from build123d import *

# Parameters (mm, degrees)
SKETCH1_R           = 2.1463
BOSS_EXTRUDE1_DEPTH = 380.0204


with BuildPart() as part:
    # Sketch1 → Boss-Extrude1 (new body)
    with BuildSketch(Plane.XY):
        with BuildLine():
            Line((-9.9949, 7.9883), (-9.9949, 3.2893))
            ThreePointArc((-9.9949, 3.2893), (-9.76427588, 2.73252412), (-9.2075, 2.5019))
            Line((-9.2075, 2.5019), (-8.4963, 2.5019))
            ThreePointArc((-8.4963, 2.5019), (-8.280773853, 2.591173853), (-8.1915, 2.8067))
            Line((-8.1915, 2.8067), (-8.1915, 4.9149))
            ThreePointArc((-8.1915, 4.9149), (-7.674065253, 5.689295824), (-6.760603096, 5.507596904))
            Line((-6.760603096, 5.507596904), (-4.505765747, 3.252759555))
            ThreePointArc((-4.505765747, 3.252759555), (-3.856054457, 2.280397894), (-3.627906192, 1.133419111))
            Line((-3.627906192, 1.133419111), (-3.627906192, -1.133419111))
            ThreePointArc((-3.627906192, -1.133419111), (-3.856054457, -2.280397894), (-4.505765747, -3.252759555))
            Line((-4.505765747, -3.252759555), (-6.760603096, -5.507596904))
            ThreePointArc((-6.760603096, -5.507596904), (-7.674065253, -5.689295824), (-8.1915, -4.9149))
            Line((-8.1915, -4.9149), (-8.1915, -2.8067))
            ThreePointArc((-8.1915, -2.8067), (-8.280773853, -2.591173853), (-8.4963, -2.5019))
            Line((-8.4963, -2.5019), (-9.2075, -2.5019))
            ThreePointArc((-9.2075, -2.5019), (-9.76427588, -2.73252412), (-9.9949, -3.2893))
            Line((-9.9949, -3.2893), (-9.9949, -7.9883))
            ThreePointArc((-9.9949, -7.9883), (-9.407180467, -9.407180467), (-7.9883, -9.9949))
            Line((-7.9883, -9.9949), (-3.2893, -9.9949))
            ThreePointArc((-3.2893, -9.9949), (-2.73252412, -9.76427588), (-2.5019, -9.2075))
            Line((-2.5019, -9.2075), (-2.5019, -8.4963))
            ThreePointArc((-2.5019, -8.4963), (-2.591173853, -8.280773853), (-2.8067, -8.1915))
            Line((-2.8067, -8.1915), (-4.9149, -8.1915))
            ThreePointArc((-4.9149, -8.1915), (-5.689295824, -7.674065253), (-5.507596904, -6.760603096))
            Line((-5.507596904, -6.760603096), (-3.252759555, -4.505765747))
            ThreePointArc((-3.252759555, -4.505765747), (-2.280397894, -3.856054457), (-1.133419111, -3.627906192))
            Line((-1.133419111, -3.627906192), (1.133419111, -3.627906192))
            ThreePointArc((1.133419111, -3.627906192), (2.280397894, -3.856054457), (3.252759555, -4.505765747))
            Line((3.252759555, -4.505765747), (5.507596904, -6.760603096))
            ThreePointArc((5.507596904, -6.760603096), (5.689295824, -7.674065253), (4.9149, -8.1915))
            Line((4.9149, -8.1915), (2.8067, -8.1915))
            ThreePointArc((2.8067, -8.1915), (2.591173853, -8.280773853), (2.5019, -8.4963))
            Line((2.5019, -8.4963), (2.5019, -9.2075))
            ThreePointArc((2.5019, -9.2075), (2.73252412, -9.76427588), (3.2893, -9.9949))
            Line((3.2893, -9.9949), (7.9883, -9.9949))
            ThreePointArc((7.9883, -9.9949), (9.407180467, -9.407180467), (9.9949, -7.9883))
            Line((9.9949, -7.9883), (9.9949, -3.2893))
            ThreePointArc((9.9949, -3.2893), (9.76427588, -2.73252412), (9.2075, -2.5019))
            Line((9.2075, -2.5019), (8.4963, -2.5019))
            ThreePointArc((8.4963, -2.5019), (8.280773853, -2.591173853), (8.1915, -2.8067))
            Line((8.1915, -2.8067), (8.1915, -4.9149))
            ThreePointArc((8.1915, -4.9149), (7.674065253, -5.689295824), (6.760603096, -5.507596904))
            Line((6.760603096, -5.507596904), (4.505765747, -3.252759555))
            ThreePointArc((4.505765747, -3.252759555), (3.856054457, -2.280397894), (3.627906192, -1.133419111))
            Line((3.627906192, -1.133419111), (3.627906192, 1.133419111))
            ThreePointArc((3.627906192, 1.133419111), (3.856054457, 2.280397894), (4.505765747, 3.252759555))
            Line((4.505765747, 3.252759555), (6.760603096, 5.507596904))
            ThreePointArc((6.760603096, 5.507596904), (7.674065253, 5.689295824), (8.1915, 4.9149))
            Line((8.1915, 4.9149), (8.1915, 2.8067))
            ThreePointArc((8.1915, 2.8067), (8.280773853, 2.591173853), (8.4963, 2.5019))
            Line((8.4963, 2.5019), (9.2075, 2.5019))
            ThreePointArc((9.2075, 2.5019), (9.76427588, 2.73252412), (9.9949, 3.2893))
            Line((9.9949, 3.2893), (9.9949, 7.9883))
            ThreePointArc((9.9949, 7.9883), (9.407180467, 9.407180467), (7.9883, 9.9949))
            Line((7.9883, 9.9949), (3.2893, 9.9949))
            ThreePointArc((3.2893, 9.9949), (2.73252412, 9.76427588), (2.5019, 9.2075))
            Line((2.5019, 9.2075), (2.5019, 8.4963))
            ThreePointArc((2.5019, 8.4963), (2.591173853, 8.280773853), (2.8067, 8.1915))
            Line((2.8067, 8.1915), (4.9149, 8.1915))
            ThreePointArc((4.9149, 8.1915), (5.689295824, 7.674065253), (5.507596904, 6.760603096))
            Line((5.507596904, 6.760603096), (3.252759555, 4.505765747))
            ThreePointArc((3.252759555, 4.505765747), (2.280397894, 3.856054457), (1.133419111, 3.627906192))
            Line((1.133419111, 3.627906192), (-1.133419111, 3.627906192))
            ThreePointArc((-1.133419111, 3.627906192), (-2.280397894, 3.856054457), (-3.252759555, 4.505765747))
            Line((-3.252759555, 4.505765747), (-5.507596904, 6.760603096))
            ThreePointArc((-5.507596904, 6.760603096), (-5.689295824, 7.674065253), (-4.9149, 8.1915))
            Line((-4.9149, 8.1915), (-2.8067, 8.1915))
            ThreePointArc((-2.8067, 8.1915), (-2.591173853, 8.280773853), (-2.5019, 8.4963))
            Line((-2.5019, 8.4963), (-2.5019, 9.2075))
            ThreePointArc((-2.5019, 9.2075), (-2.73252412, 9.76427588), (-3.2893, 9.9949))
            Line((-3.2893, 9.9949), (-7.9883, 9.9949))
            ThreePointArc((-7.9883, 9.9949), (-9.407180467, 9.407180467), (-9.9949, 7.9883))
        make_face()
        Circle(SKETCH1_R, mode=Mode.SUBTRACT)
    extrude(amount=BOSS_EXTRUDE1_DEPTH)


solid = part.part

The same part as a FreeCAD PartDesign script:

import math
import FreeCAD as App
import Part
import Sketcher
Q = App.Units.Quantity

doc = App.newDocument("Part")
body = doc.addObject("PartDesign::Body", "Body")

# Sketch on XY plane
sketch1 = body.newObject("Sketcher::SketchObject", "Sketch")
sketch1.AttachmentSupport = (doc.getObject("XY_Plane"), [""])
sketch1.MapMode = "FlatFace"
sketch1.addGeometry([
    Part.LineSegment(App.Vector(-9.9949, 7.9883, 0), App.Vector(-9.9949, 3.2893, 0)),  # 0
    Part.ArcOfCircle(Part.Circle(App.Vector(-9.2075, 3.2893, 0), App.Vector(0, 0, 1), 0.7874), math.radians(180), math.radians(270)),  # 1
    Part.LineSegment(App.Vector(-9.2075, 2.5019, 0), App.Vector(-8.4963, 2.5019, 0)),  # 2
    Part.ArcOfCircle(Part.Circle(App.Vector(-8.4963, 2.8067, 0), App.Vector(0, 0, 1), 0.3048), math.radians(-90), math.radians(0)),  # 3
    Part.LineSegment(App.Vector(-8.1915, 2.8067, 0), App.Vector(-8.1915, 4.9149, 0)),  # 4
    Part.ArcOfCircle(Part.Circle(App.Vector(-7.3533, 4.9149, 0), App.Vector(0, 0, 1), 0.8382), math.radians(45), math.radians(180)),  # 5
    Part.LineSegment(App.Vector(-6.760603, 5.507597, 0), App.Vector(-4.505766, 3.25276, 0)),  # 6
    Part.ArcOfCircle(Part.Circle(App.Vector(-6.625106, 1.133419, 0), App.Vector(0, 0, 1), 2.9972), math.radians(0), math.radians(45)),  # 7
    Part.LineSegment(App.Vector(-3.627906, 1.133419, 0), App.Vector(-3.627906, -1.133419, 0)),  # 8
    Part.ArcOfCircle(Part.Circle(App.Vector(-6.625106, -1.133419, 0), App.Vector(0, 0, 1), 2.9972), math.radians(-45), math.radians(0)),  # 9
    Part.LineSegment(App.Vector(-4.505766, -3.25276, 0), App.Vector(-6.760603, -5.507597, 0)),  # 10
    Part.ArcOfCircle(Part.Circle(App.Vector(-7.3533, -4.9149, 0), App.Vector(0, 0, 1), 0.8382), math.radians(180), math.radians(315)),  # 11
    Part.LineSegment(App.Vector(-8.1915, -4.9149, 0), App.Vector(-8.1915, -2.8067, 0)),  # 12
    Part.ArcOfCircle(Part.Circle(App.Vector(-8.4963, -2.8067, 0), App.Vector(0, 0, 1), 0.3048), math.radians(0), math.radians(90)),  # 13
    Part.LineSegment(App.Vector(-8.4963, -2.5019, 0), App.Vector(-9.2075, -2.5019, 0)),  # 14
    Part.ArcOfCircle(Part.Circle(App.Vector(-9.2075, -3.2893, 0), App.Vector(0, 0, 1), 0.7874), math.radians(90), math.radians(180)),  # 15
    Part.LineSegment(App.Vector(-9.9949, -3.2893, 0), App.Vector(-9.9949, -7.9883, 0)),  # 16
    Part.ArcOfCircle(Part.Circle(App.Vector(-7.9883, -7.9883, 0), App.Vector(0, 0, 1), 2.0066), math.radians(180), math.radians(270)),  # 17
    Part.LineSegment(App.Vector(-7.9883, -9.9949, 0), App.Vector(-3.2893, -9.9949, 0)),  # 18
    Part.ArcOfCircle(Part.Circle(App.Vector(-3.2893, -9.2075, 0), App.Vector(0, 0, 1), 0.7874), math.radians(-90), math.radians(0)),  # 19
    Part.LineSegment(App.Vector(-2.5019, -9.2075, 0), App.Vector(-2.5019, -8.4963, 0)),  # 20
    Part.ArcOfCircle(Part.Circle(App.Vector(-2.8067, -8.4963, 0), App.Vector(0, 0, 1), 0.3048), math.radians(0), math.radians(90)),  # 21
    Part.LineSegment(App.Vector(-2.8067, -8.1915, 0), App.Vector(-4.9149, -8.1915, 0)),  # 22
    Part.ArcOfCircle(Part.Circle(App.Vector(-4.9149, -7.3533, 0), App.Vector(0, 0, 1), 0.8382), math.radians(135), math.radians(270)),  # 23
    Part.LineSegment(App.Vector(-5.507597, -6.760603, 0), App.Vector(-3.25276, -4.505766, 0)),  # 24
    Part.ArcOfCircle(Part.Circle(App.Vector(-1.133419, -6.625106, 0), App.Vector(0, 0, 1), 2.9972), math.radians(90), math.radians(135)),  # 25
    Part.LineSegment(App.Vector(-1.133419, -3.627906, 0), App.Vector(1.133419, -3.627906, 0)),  # 26
    Part.ArcOfCircle(Part.Circle(App.Vector(1.133419, -6.625106, 0), App.Vector(0, 0, 1), 2.9972), math.radians(45), math.radians(90)),  # 27
    Part.LineSegment(App.Vector(3.25276, -4.505766, 0), App.Vector(5.507597, -6.760603, 0)),  # 28
    Part.ArcOfCircle(Part.Circle(App.Vector(4.9149, -7.3533, 0), App.Vector(0, 0, 1), 0.8382), math.radians(-90), math.radians(45)),  # 29
    Part.LineSegment(App.Vector(4.9149, -8.1915, 0), App.Vector(2.8067, -8.1915, 0)),  # 30
    Part.ArcOfCircle(Part.Circle(App.Vector(2.8067, -8.4963, 0), App.Vector(0, 0, 1), 0.3048), math.radians(90), math.radians(180)),  # 31
    Part.LineSegment(App.Vector(2.5019, -8.4963, 0), App.Vector(2.5019, -9.2075, 0)),  # 32
    Part.ArcOfCircle(Part.Circle(App.Vector(3.2893, -9.2075, 0), App.Vector(0, 0, 1), 0.7874), math.radians(180), math.radians(270)),  # 33
    Part.LineSegment(App.Vector(3.2893, -9.9949, 0), App.Vector(7.9883, -9.9949, 0)),  # 34
    Part.ArcOfCircle(Part.Circle(App.Vector(7.9883, -7.9883, 0), App.Vector(0, 0, 1), 2.0066), math.radians(-90), math.radians(0)),  # 35
    Part.LineSegment(App.Vector(9.9949, -7.9883, 0), App.Vector(9.9949, -3.2893, 0)),  # 36
    Part.ArcOfCircle(Part.Circle(App.Vector(9.2075, -3.2893, 0), App.Vector(0, 0, 1), 0.7874), math.radians(0), math.radians(90)),  # 37
    Part.LineSegment(App.Vector(9.2075, -2.5019, 0), App.Vector(8.4963, -2.5019, 0)),  # 38
    Part.ArcOfCircle(Part.Circle(App.Vector(8.4963, -2.8067, 0), App.Vector(0, 0, 1), 0.3048), math.radians(90), math.radians(180)),  # 39
    Part.LineSegment(App.Vector(8.1915, -2.8067, 0), App.Vector(8.1915, -4.9149, 0)),  # 40
    Part.ArcOfCircle(Part.Circle(App.Vector(7.3533, -4.9149, 0), App.Vector(0, 0, 1), 0.8382), math.radians(-135), math.radians(0)),  # 41
    Part.LineSegment(App.Vector(6.760603, -5.507597, 0), App.Vector(4.505766, -3.25276, 0)),  # 42
    Part.ArcOfCircle(Part.Circle(App.Vector(6.625106, -1.133419, 0), App.Vector(0, 0, 1), 2.9972), math.radians(180), math.radians(225)),  # 43
    Part.LineSegment(App.Vector(3.627906, -1.133419, 0), App.Vector(3.627906, 1.133419, 0)),  # 44
    Part.ArcOfCircle(Part.Circle(App.Vector(6.625106, 1.133419, 0), App.Vector(0, 0, 1), 2.9972), math.radians(135), math.radians(180)),  # 45
    Part.LineSegment(App.Vector(4.505766, 3.25276, 0), App.Vector(6.760603, 5.507597, 0)),  # 46
    Part.ArcOfCircle(Part.Circle(App.Vector(7.3533, 4.9149, 0), App.Vector(0, 0, 1), 0.8382), math.radians(0), math.radians(135)),  # 47
    Part.LineSegment(App.Vector(8.1915, 4.9149, 0), App.Vector(8.1915, 2.8067, 0)),  # 48
    Part.ArcOfCircle(Part.Circle(App.Vector(8.4963, 2.8067, 0), App.Vector(0, 0, 1), 0.3048), math.radians(180), math.radians(270)),  # 49
    Part.LineSegment(App.Vector(8.4963, 2.5019, 0), App.Vector(9.2075, 2.5019, 0)),  # 50
    Part.ArcOfCircle(Part.Circle(App.Vector(9.2075, 3.2893, 0), App.Vector(0, 0, 1), 0.7874), math.radians(-90), math.radians(0)),  # 51
    Part.LineSegment(App.Vector(9.9949, 3.2893, 0), App.Vector(9.9949, 7.9883, 0)),  # 52
    Part.ArcOfCircle(Part.Circle(App.Vector(7.9883, 7.9883, 0), App.Vector(0, 0, 1), 2.0066), math.radians(0), math.radians(90)),  # 53
    Part.LineSegment(App.Vector(7.9883, 9.9949, 0), App.Vector(3.2893, 9.9949, 0)),  # 54
    Part.ArcOfCircle(Part.Circle(App.Vector(3.2893, 9.2075, 0), App.Vector(0, 0, 1), 0.7874), math.radians(90), math.radians(180)),  # 55
    Part.LineSegment(App.Vector(2.5019, 9.2075, 0), App.Vector(2.5019, 8.4963, 0)),  # 56
    Part.ArcOfCircle(Part.Circle(App.Vector(2.8067, 8.4963, 0), App.Vector(0, 0, 1), 0.3048), math.radians(180), math.radians(270)),  # 57
    Part.LineSegment(App.Vector(2.8067, 8.1915, 0), App.Vector(4.9149, 8.1915, 0)),  # 58
    Part.ArcOfCircle(Part.Circle(App.Vector(4.9149, 7.3533, 0), App.Vector(0, 0, 1), 0.8382), math.radians(-45), math.radians(90)),  # 59
    Part.LineSegment(App.Vector(5.507597, 6.760603, 0), App.Vector(3.25276, 4.505766, 0)),  # 60
    Part.ArcOfCircle(Part.Circle(App.Vector(1.133419, 6.625106, 0), App.Vector(0, 0, 1), 2.9972), math.radians(-90), math.radians(-45)),  # 61
    Part.LineSegment(App.Vector(1.133419, 3.627906, 0), App.Vector(-1.133419, 3.627906, 0)),  # 62
    Part.ArcOfCircle(Part.Circle(App.Vector(-1.133419, 6.625106, 0), App.Vector(0, 0, 1), 2.9972), math.radians(-135), math.radians(-90)),  # 63
    Part.LineSegment(App.Vector(-3.25276, 4.505766, 0), App.Vector(-5.507597, 6.760603, 0)),  # 64
    Part.ArcOfCircle(Part.Circle(App.Vector(-4.9149, 7.3533, 0), App.Vector(0, 0, 1), 0.8382), math.radians(90), math.radians(225)),  # 65
    Part.LineSegment(App.Vector(-4.9149, 8.1915, 0), App.Vector(-2.8067, 8.1915, 0)),  # 66
    Part.ArcOfCircle(Part.Circle(App.Vector(-2.8067, 8.4963, 0), App.Vector(0, 0, 1), 0.3048), math.radians(-90), math.radians(0)),  # 67
    Part.LineSegment(App.Vector(-2.5019, 8.4963, 0), App.Vector(-2.5019, 9.2075, 0)),  # 68
    Part.ArcOfCircle(Part.Circle(App.Vector(-3.2893, 9.2075, 0), App.Vector(0, 0, 1), 0.7874), math.radians(0), math.radians(90)),  # 69
    Part.LineSegment(App.Vector(-3.2893, 9.9949, 0), App.Vector(-7.9883, 9.9949, 0)),  # 70
    Part.ArcOfCircle(Part.Circle(App.Vector(-7.9883, 7.9883, 0), App.Vector(0, 0, 1), 2.0066), math.radians(90), math.radians(180)),  # 71
    Part.Circle(App.Vector(0, 0, 0), App.Vector(0, 0, 1), 2.1463),  # 72
], False)
sketch1.addConstraint([
    Sketcher.Constraint("Tangent", 0, 2, 1, 1),
    Sketcher.Constraint("Tangent", 1, 2, 2, 1),
    Sketcher.Constraint("Tangent", 2, 2, 3, 1),
    Sketcher.Constraint("Tangent", 3, 2, 4, 1),
    Sketcher.Constraint("Tangent", 4, 2, 5, 2),
    Sketcher.Constraint("Tangent", 5, 1, 6, 1),
    Sketcher.Constraint("Tangent", 6, 2, 7, 2),
    Sketcher.Constraint("Tangent", 7, 1, 8, 1),
    Sketcher.Constraint("Tangent", 8, 2, 9, 2),
    Sketcher.Constraint("Tangent", 9, 1, 10, 1),
    Sketcher.Constraint("Tangent", 10, 2, 11, 2),
    Sketcher.Constraint("Tangent", 11, 1, 12, 1),
    Sketcher.Constraint("Tangent", 12, 2, 13, 1),
    Sketcher.Constraint("Tangent", 13, 2, 14, 1),
    Sketcher.Constraint("Tangent", 14, 2, 15, 1),
    Sketcher.Constraint("Tangent", 15, 2, 16, 1),
    Sketcher.Constraint("Tangent", 16, 2, 17, 1),
    Sketcher.Constraint("Tangent", 17, 2, 18, 1),
    Sketcher.Constraint("Tangent", 18, 2, 19, 1),
    Sketcher.Constraint("Tangent", 19, 2, 20, 1),
    Sketcher.Constraint("Tangent", 20, 2, 21, 1),
    Sketcher.Constraint("Tangent", 21, 2, 22, 1),
    Sketcher.Constraint("Tangent", 22, 2, 23, 2),
    Sketcher.Constraint("Tangent", 23, 1, 24, 1),
    Sketcher.Constraint("Tangent", 24, 2, 25, 2),
    Sketcher.Constraint("Tangent", 25, 1, 26, 1),
    Sketcher.Constraint("Tangent", 26, 2, 27, 2),
    Sketcher.Constraint("Tangent", 27, 1, 28, 1),
    Sketcher.Constraint("Tangent", 28, 2, 29, 2),
    Sketcher.Constraint("Tangent", 29, 1, 30, 1),
    Sketcher.Constraint("Tangent", 30, 2, 31, 1),
    Sketcher.Constraint("Tangent", 31, 2, 32, 1),
    Sketcher.Constraint("Tangent", 32, 2, 33, 1),
    Sketcher.Constraint("Tangent", 33, 2, 34, 1),
    Sketcher.Constraint("Tangent", 34, 2, 35, 1),
    Sketcher.Constraint("Tangent", 35, 2, 36, 1),
    Sketcher.Constraint("Tangent", 36, 2, 37, 1),
    Sketcher.Constraint("Tangent", 37, 2, 38, 1),
    Sketcher.Constraint("Tangent", 38, 2, 39, 1),
    Sketcher.Constraint("Tangent", 39, 2, 40, 1),
    Sketcher.Constraint("Tangent", 40, 2, 41, 2),
    Sketcher.Constraint("Tangent", 41, 1, 42, 1),
    Sketcher.Constraint("Tangent", 42, 2, 43, 2),
    Sketcher.Constraint("Tangent", 43, 1, 44, 1),
    Sketcher.Constraint("Tangent", 44, 2, 45, 2),
    Sketcher.Constraint("Tangent", 45, 1, 46, 1),
    Sketcher.Constraint("Tangent", 46, 2, 47, 2),
    Sketcher.Constraint("Tangent", 47, 1, 48, 1),
    Sketcher.Constraint("Tangent", 48, 2, 49, 1),
    Sketcher.Constraint("Tangent", 49, 2, 50, 1),
    Sketcher.Constraint("Tangent", 50, 2, 51, 1),
    Sketcher.Constraint("Tangent", 51, 2, 52, 1),
    Sketcher.Constraint("Tangent", 52, 2, 53, 1),
    Sketcher.Constraint("Tangent", 53, 2, 54, 1),
    Sketcher.Constraint("Tangent", 54, 2, 55, 1),
    Sketcher.Constraint("Tangent", 55, 2, 56, 1),
    Sketcher.Constraint("Tangent", 56, 2, 57, 1),
    Sketcher.Constraint("Tangent", 57, 2, 58, 1),
    Sketcher.Constraint("Tangent", 58, 2, 59, 2),
    Sketcher.Constraint("Tangent", 59, 1, 60, 1),
    Sketcher.Constraint("Tangent", 60, 2, 61, 2),
    Sketcher.Constraint("Tangent", 61, 1, 62, 1),
    Sketcher.Constraint("Tangent", 62, 2, 63, 2),
    Sketcher.Constraint("Tangent", 63, 1, 64, 1),
    Sketcher.Constraint("Tangent", 64, 2, 65, 2),
    Sketcher.Constraint("Tangent", 65, 1, 66, 1),
    Sketcher.Constraint("Tangent", 66, 2, 67, 1),
    Sketcher.Constraint("Tangent", 67, 2, 68, 1),
    Sketcher.Constraint("Tangent", 68, 2, 69, 1),
    Sketcher.Constraint("Tangent", 69, 2, 70, 1),
    Sketcher.Constraint("Tangent", 70, 2, 71, 1),
    Sketcher.Constraint("Tangent", 71, 2, 0, 1),
    Sketcher.Constraint("Vertical", 0),
    Sketcher.Constraint("Horizontal", 2),
    Sketcher.Constraint("Vertical", 4),
    Sketcher.Constraint("Vertical", 8),
    Sketcher.Constraint("Vertical", 12),
    Sketcher.Constraint("Horizontal", 14),
    Sketcher.Constraint("Vertical", 16),
    Sketcher.Constraint("Horizontal", 18),
    Sketcher.Constraint("Vertical", 20),
    Sketcher.Constraint("Horizontal", 22),
    Sketcher.Constraint("Horizontal", 26),
    Sketcher.Constraint("Horizontal", 30),
    Sketcher.Constraint("Vertical", 32),
    Sketcher.Constraint("Horizontal", 34),
    Sketcher.Constraint("Vertical", 36),
    Sketcher.Constraint("Horizontal", 38),
    Sketcher.Constraint("Vertical", 40),
    Sketcher.Constraint("Vertical", 44),
    Sketcher.Constraint("Vertical", 48),
    Sketcher.Constraint("Horizontal", 50),
    Sketcher.Constraint("Vertical", 52),
    Sketcher.Constraint("Horizontal", 54),
    Sketcher.Constraint("Vertical", 56),
    Sketcher.Constraint("Horizontal", 58),
    Sketcher.Constraint("Horizontal", 62),
    Sketcher.Constraint("Horizontal", 66),
    Sketcher.Constraint("Vertical", 68),
    Sketcher.Constraint("Horizontal", 70),
    Sketcher.Constraint("Coincident", 72, 3, -1, 1),
    Sketcher.Constraint("Equal", 7, 9),
    Sketcher.Constraint("Equal", 5, 11),
    Sketcher.Constraint("Equal", 3, 13),
    Sketcher.Constraint("Equal", 1, 15),
    Sketcher.Constraint("Equal", 15, 19),
    Sketcher.Constraint("Equal", 13, 21),
    Sketcher.Constraint("Equal", 11, 23),
    Sketcher.Constraint("Equal", 9, 25),
    Sketcher.Constraint("Equal", 25, 27),
    Sketcher.Constraint("Equal", 23, 29),
    Sketcher.Constraint("Equal", 21, 31),
    Sketcher.Constraint("Equal", 19, 33),
    Sketcher.Constraint("Equal", 17, 35),
    Sketcher.Constraint("Equal", 33, 37),
    Sketcher.Constraint("Equal", 31, 39),
    Sketcher.Constraint("Equal", 29, 41),
    Sketcher.Constraint("Equal", 27, 43),
    Sketcher.Constraint("Equal", 43, 45),
    Sketcher.Constraint("Equal", 41, 47),
    Sketcher.Constraint("Equal", 39, 49),
    Sketcher.Constraint("Equal", 37, 51),
    Sketcher.Constraint("Equal", 35, 53),
    Sketcher.Constraint("Equal", 51, 55),
    Sketcher.Constraint("Equal", 49, 57),
    Sketcher.Constraint("Equal", 47, 59),
    Sketcher.Constraint("Equal", 45, 61),
    Sketcher.Constraint("Equal", 61, 63),
    Sketcher.Constraint("Equal", 59, 65),
    Sketcher.Constraint("Equal", 57, 67),
    Sketcher.Constraint("Equal", 55, 69),
    Sketcher.Constraint("Equal", 53, 71),
    Sketcher.Constraint("Symmetric", 1, 3, 37, 3, -1, 1),
    Sketcher.Constraint("Symmetric", 5, 3, 41, 3, -1, 1),
    Sketcher.Constraint("Symmetric", 7, 3, 43, 3, -1, 1),
    Sketcher.Constraint("Symmetric", 11, 3, 47, 3, -1, 1),
    Sketcher.Constraint("Symmetric", 15, 3, 51, 3, -1, 1),
    Sketcher.Constraint("Symmetric", 19, 3, 55, 3, -1, 1),
    Sketcher.Constraint("Symmetric", 23, 3, 59, 3, -1, 1),
    Sketcher.Constraint("Symmetric", 25, 3, 61, 3, -1, 1),
    Sketcher.Constraint("Symmetric", 29, 3, 65, 3, -1, 1),
    Sketcher.Constraint("Symmetric", 33, 3, 69, 3, -1, 1),
    Sketcher.Constraint("Symmetric", 23, 3, 29, 3, -2),
    Sketcher.Constraint("Symmetric", 19, 3, 33, 3, -2),
    Sketcher.Constraint("Symmetric", 15, 3, 37, 3, -2),
    Sketcher.Constraint("Symmetric", 11, 3, 41, 3, -2),
    Sketcher.Constraint("Perpendicular", 6, 10),
    Sketcher.Constraint("Parallel", 10, 24),
    Sketcher.Constraint("Perpendicular", 24, 28),
    Sketcher.Constraint("Perpendicular", 42, 46),
    Sketcher.Constraint("Perpendicular", 60, 64),
    Sketcher.Constraint("Horizontal", 9, 3, 43, 3),
    Sketcher.Constraint("Equal", 70, 0),
    Sketcher.Constraint("Equal", 66, 4),
    Sketcher.Constraint("Equal", 62, 8),
    Sketcher.Constraint("Equal", 50, 20),
    Sketcher.Constraint("Equal", 10, 24),
    Sketcher.Constraint("Diameter", 72, Q("0.169 in")),
    Sketcher.Constraint("Radius", 1, Q("0.031 in")),
    Sketcher.Constraint("Radius", 3, Q("0.012 in")),
    Sketcher.Constraint("Radius", 5, Q("0.033 in")),
    Sketcher.Constraint("Radius", 7, Q("0.118 in")),
    Sketcher.Constraint("Radius", 17, Q("0.079 in")),
    Sketcher.Constraint("DistanceX", 2, 1, 2, 2, Q("0.028 in")),
    Sketcher.Constraint("DistanceX", 18, 1, 18, 2, Q("0.185 in")),
    Sketcher.Constraint("DistanceX", 22, 2, 22, 1, Q("0.083 in")),
    Sketcher.Constraint("DistanceX", 1, 3, -1, 1, Q("0.3625 in")),
    Sketcher.Constraint("DistanceX", 26, 1, 26, 2, 2.266838),
])
pad1 = body.newObject("PartDesign::Pad", "Pad")
pad1.Profile = sketch1
pad1.Length = 380.0204

doc.recompute()
